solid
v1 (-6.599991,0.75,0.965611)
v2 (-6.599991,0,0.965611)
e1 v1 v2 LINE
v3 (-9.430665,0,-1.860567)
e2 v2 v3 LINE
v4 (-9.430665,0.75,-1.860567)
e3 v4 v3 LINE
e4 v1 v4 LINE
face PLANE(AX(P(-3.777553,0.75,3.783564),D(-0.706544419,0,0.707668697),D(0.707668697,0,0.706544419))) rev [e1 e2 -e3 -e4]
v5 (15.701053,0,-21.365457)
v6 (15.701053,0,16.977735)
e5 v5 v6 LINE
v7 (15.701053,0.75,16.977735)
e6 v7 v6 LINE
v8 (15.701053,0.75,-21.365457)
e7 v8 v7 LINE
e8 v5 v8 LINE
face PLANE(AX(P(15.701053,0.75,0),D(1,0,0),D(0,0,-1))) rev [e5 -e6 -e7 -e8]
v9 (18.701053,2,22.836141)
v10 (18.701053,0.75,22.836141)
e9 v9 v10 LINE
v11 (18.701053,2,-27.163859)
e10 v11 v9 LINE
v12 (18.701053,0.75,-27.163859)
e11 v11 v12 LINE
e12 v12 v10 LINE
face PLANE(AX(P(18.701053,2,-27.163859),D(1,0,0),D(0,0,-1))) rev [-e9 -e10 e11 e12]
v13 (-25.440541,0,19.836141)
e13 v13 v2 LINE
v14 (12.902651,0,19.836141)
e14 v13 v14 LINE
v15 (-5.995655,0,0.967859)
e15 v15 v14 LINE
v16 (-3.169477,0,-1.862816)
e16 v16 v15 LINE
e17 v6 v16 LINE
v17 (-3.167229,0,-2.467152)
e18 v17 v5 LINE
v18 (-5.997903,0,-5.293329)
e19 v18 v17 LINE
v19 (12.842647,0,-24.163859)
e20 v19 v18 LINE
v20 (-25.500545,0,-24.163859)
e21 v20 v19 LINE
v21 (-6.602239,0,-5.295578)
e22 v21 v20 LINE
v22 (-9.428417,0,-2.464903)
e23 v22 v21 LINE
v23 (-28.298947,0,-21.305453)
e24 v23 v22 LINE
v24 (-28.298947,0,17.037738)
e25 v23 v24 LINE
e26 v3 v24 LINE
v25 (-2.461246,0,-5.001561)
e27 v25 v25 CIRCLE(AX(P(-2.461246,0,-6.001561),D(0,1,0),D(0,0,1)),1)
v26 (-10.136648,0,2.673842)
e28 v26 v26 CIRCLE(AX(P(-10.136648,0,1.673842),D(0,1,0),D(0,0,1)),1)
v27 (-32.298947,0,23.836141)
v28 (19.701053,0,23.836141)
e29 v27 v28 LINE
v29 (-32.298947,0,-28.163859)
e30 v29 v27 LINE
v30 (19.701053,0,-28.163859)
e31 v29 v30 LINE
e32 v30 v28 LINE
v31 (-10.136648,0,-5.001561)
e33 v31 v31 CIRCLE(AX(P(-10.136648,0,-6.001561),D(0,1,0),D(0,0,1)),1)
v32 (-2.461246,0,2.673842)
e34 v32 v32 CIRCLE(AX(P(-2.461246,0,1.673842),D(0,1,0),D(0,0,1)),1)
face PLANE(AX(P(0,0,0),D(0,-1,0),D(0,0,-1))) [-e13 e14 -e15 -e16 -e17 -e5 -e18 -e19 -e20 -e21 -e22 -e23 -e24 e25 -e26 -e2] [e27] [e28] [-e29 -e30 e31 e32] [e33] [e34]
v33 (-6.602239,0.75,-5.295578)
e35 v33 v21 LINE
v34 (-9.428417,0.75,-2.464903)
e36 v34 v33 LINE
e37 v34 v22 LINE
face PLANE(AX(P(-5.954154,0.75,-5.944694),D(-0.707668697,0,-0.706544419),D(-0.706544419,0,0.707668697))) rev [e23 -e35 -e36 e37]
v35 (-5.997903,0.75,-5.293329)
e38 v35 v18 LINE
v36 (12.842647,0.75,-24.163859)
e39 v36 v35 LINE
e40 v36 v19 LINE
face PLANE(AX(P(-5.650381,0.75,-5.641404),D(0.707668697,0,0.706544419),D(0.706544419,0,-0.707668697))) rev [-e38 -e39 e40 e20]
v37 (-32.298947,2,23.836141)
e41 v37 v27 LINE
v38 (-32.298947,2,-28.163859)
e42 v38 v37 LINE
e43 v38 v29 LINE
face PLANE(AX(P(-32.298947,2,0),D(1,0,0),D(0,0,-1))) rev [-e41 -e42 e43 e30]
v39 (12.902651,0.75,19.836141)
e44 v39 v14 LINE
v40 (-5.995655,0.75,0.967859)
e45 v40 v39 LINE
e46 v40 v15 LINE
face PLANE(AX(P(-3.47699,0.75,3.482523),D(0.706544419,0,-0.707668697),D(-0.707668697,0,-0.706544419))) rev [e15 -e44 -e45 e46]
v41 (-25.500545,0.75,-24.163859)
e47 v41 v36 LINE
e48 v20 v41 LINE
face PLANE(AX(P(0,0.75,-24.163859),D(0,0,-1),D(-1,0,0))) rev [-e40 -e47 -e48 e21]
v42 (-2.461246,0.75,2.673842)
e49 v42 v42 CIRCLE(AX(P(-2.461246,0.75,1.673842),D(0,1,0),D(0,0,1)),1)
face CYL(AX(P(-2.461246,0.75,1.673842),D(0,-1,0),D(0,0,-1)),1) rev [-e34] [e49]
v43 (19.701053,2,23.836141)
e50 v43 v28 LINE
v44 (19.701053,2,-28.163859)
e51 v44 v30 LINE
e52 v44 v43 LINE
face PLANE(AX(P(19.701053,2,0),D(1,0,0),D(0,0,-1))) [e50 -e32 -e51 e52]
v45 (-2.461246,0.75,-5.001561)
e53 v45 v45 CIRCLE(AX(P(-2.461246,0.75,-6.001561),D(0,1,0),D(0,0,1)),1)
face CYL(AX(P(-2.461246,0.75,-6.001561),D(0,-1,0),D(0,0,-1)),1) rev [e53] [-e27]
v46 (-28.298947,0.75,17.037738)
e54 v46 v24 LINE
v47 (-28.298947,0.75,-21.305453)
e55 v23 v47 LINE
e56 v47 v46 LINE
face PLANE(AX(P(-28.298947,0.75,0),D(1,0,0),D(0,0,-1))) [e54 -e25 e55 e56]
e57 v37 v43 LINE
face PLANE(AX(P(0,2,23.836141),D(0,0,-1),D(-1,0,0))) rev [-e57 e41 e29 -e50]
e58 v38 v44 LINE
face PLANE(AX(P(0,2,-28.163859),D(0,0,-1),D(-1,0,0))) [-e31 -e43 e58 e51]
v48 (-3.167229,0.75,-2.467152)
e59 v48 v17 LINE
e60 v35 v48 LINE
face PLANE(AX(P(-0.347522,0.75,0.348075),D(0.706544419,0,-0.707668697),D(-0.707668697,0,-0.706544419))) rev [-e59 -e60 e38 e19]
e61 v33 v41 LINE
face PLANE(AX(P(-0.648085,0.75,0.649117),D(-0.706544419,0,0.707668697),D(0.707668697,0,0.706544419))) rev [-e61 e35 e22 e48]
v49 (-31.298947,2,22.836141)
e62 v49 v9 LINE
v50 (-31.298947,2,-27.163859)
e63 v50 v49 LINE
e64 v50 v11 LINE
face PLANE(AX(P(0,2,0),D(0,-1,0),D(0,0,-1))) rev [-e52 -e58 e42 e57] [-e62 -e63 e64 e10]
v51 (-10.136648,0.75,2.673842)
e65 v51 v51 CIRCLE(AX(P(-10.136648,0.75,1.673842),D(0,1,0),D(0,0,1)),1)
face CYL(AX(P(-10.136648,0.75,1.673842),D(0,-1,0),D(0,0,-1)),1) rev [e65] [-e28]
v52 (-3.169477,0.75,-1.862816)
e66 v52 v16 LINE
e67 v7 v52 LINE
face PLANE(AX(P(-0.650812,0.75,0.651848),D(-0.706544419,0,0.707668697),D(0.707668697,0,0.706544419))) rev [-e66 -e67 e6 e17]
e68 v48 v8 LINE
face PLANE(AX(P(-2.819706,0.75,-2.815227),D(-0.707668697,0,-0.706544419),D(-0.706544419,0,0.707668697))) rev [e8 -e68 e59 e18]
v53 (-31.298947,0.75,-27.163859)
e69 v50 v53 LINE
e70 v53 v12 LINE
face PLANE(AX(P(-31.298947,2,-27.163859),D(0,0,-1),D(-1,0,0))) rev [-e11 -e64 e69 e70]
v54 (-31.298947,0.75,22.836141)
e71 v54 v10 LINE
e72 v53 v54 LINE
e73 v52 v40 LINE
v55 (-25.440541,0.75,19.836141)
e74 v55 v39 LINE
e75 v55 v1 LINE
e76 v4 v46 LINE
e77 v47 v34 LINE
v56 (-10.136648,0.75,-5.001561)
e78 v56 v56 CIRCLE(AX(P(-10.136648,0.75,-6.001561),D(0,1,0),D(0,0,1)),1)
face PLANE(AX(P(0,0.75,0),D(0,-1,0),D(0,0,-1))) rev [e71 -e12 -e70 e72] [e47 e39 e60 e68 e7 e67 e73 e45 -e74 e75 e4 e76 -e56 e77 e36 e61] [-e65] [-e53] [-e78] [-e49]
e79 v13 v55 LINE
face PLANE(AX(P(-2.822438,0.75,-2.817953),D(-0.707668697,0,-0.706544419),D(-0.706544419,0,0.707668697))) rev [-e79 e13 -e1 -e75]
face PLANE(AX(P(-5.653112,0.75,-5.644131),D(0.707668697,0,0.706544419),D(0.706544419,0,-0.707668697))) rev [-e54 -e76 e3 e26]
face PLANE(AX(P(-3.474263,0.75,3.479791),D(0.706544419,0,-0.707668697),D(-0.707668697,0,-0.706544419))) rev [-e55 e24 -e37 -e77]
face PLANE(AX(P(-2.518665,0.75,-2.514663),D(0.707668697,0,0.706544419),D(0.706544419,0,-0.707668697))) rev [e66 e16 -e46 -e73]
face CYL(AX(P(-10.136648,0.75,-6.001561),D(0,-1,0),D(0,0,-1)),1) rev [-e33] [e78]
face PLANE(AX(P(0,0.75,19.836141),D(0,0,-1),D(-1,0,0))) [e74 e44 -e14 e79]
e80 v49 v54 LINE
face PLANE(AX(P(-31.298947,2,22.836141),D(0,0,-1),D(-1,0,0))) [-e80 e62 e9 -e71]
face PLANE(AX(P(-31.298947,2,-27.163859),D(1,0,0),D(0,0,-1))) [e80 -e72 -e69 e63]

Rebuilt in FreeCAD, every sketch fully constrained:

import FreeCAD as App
import Part
import Sketcher

V = App.Vector
Q = App.Units.Quantity


def add_polygon(sketch, points):
    """Adds a closed chain of lines whose ends are joined by coincident constraints."""
    first, n = sketch.GeometryCount, len(points)
    for a, b in zip(points, points[1:] + points[:1]):
        sketch.addGeometry(Part.LineSegment(App.Vector(*a, 0), App.Vector(*b, 0)), False)
    for i in range(n):
        sketch.addConstraint(Sketcher.Constraint("Coincident", first + i, 2, first + (i + 1) % n, 1))

doc = App.newDocument("Part")
body = doc.addObject("PartDesign::Body", "Body")

# Sketch on XZ plane
sketch1 = body.newObject("Sketcher::SketchObject", "Sketch")
sketch1.AttachmentSupport = (doc.getObject("XZ_Plane"), [""])
sketch1.MapMode = "FlatFace"
add_polygon(sketch1, [(-31, -27), (-31, 23), (19, 23), (19, -27)])  # lines 0-3
add_polygon(sketch1, [(16, 20), (-28, 20), (-28, -24), (16, -24)])  # lines 4-7
sketch1.addConstraint([
    Sketcher.Constraint("Vertical", 0),
    Sketcher.Constraint("Horizontal", 1),
    Sketcher.Constraint("Vertical", 2),
    Sketcher.Constraint("Horizontal", 3),
    Sketcher.Constraint("Horizontal", 4),
    Sketcher.Constraint("Vertical", 5),
    Sketcher.Constraint("Horizontal", 6),
    Sketcher.Constraint("Vertical", 7),
    Sketcher.Constraint("Equal", 3, 0),
    Sketcher.Constraint("Equal", 6, 5),
    Sketcher.Constraint("DistanceX", 1, 1, 1, 2, Q("50 mm")),
    Sketcher.Constraint("DistanceX", 4, 2, 4, 1, Q("44 mm")),
    Sketcher.Constraint("DistanceX", 0, 2, 4, 2, Q("3 mm")),
    Sketcher.Constraint("DistanceY", 4, 2, 0, 2, Q("3 mm")),
    Sketcher.Constraint("DistanceY", -1, 1, 0, 2, Q("22.836141 mm")),
    Sketcher.Constraint("DistanceX", 0, 2, -1, 1, Q("31.298947 mm")),
])
pad1 = body.newObject("PartDesign::Pad", "Pad")
pad1.Profile = sketch1
pad1.Length = 0.75
pad1.Reversed = True

# Sketch on XZ plane
sketch2 = body.newObject("Sketcher::SketchObject", "Sketch001")
sketch2.AttachmentSupport = (doc.getObject("XZ_Plane"), [""])
sketch2.MapMode = "FlatFace"
add_polygon(sketch2, [(-9.4, -1.9), (-31.3, 20), (-31.3, 22.8), (-28.4, 22.8), (-6.6, 1)])  # lines 0-4
sketch2.addGeometry(Part.Circle(V(-10.1, 1.7, 0), V(0, 0, 1), 1), False)  # 5
add_polygon(sketch2, [(-6, 1), (15.9, 22.8), (18.7, 22.8), (18.7, 20), (-3.2, -1.9)])  # lines 6-10
sketch2.addGeometry(Part.Circle(V(-2.5, 1.7, 0), V(0, 0, 1), 1), False)  # 11
add_polygon(sketch2, [(18.7, -27.2), (15.8, -27.2), (-6, -5.3), (-3.2, -2.5), (18.7, -24.4)])  # lines 12-16
sketch2.addGeometry(Part.Circle(V(-2.5, -6, 0), V(0, 0, 1), 1), False)  # 17
add_polygon(sketch2, [(-31.3, -27.2), (-31.3, -24.3), (-9.4, -2.5), (-6.6, -5.3), (-28.5, -27.2)])  # lines 18-22
sketch2.addGeometry(Part.Circle(V(-10.1, -6, 0), V(0, 0, 1), 1), False)  # 23
sketch2.addConstraint([
    Sketcher.Constraint("Vertical", 1),
    Sketcher.Constraint("Horizontal", 2),
    Sketcher.Constraint("Horizontal", 7),
    Sketcher.Constraint("Vertical", 8),
    Sketcher.Constraint("Horizontal", 12),
    Sketcher.Constraint("Vertical", 16),
    Sketcher.Constraint("Vertical", 18),
    Sketcher.Constraint("Horizontal", 22),
    Sketcher.Constraint("Equal", 5, 11),
    Sketcher.Constraint("Equal", 11, 17),
    Sketcher.Constraint("Equal", 17, 23),
    Sketcher.Constraint("Parallel", 0, 3),
    Sketcher.Constraint("Perpendicular", 3, 4),
    Sketcher.Constraint("Parallel", 4, 6),
    Sketcher.Constraint("Parallel", 6, 9),
    Sketcher.Constraint("Perpendicular", 9, 10),
    Sketcher.Constraint("Parallel", 10, 13),
    Sketcher.Constraint("Perpendicular", 13, 14),
    Sketcher.Constraint("Perpendicular", 14, 15),
    Sketcher.Constraint("Perpendicular", 15, 19),
    Sketcher.Constraint("Perpendicular", 19, 20),
    Sketcher.Constraint("Perpendicular", 20, 21),
    Sketcher.Constraint("Horizontal", 5, 3, 11, 3),
    Sketcher.Constraint("Horizontal", 17, 3, 23, 3),
    Sketcher.Constraint("Horizontal", 2, 2, 6, 2),
    Sketcher.Constraint("Horizontal", 16, 2, 21, 2),
    Sketcher.Constraint("Vertical", 11, 3, 17, 3),
    Sketcher.Constraint("Vertical", 5, 3, 23, 3),
    Sketcher.Constraint("Vertical", 8, 2, 15, 2),
    Sketcher.Constraint("Vertical", 1, 2, 18, 2),
    Sketcher.Constraint("Equal", 2, 12),
    Sketcher.Constraint("Equal", 7, 22),
    Sketcher.Constraint("Equal", 22, 1),
    Sketcher.Constraint("Equal", 12, 8),
    Sketcher.Constraint("Equal", 1, 16),
    Sketcher.Constraint("Equal", 8, 18),
    Sketcher.Constraint("Equal", 0, 6),
    Sketcher.Constraint("Equal", 9, 13),
    Sketcher.Constraint("Equal", 13, 19),
    Sketcher.Constraint("Diameter", 5, Q("2 mm")),
    Sketcher.Constraint("Distance", 4, Q("4 mm")),
    Sketcher.Constraint("DistanceX", 7, 1, 7, 2, Q("2.793629 mm")),
    Sketcher.Constraint("DistanceX", 0, 2, 5, 3, Q("21.162299 mm")),
    Sketcher.Constraint("DistanceX", 0, 2, 11, 3, Q("28.837701 mm")),
    Sketcher.Constraint("DistanceY", 5, 3, 1, 2, Q("21.162299 mm")),
    Sketcher.Constraint("DistanceY", 23, 3, 1, 2, Q("28.837701 mm")),
    Sketcher.Constraint("DistanceX", 11, 3, 7, 2, Q("21.162299 mm")),
    Sketcher.Constraint("DistanceY", 12, 2, 17, 3, Q("21.162299 mm")),
    Sketcher.Constraint("DistanceY", 15, 2, 13, 2, Q("19.076901 mm")),
    Sketcher.Constraint("Distance", 3, Q("30.905041 mm")),
    Sketcher.Constraint("DistanceX", 5, 3, -1, 1, Q("10.136648 mm")),
    Sketcher.Constraint("DistanceY", 17, 3, -1, 1, Q("6.001561 mm")),
])
pad2 = body.newObject("PartDesign::Pad", "Pad001")
pad2.Profile = sketch2
pad2.Length = 0.75
pad2.Reversed = True

# Sketch on XZ plane
sketch3 = body.newObject("Sketcher::SketchObject", "Sketch002")
sketch3.AttachmentSupport = (doc.getObject("XZ_Plane"), [""])
sketch3.MapMode = "FlatFace"
add_polygon(sketch3, [(-32, -28), (-32, 24), (20, 24), (20, -28)])  # lines 0-3
add_polygon(sketch3, [(19, 23), (-31, 23), (-31, -27), (19, -27)])  # lines 4-7
sketch3.addConstraint([
    Sketcher.Constraint("Vertical", 0),
    Sketcher.Constraint("Horizontal", 1),
    Sketcher.Constraint("Vertical", 2),
    Sketcher.Constraint("Horizontal", 3),
    Sketcher.Constraint("Horizontal", 4),
    Sketcher.Constraint("Vertical", 5),
    Sketcher.Constraint("Horizontal", 6),
    Sketcher.Constraint("Vertical", 7),
    Sketcher.Constraint("Equal", 3, 0),
    Sketcher.Constraint("Equal", 6, 5),
    Sketcher.Constraint("DistanceX", 1, 1, 1, 2, Q("52 mm")),
    Sketcher.Constraint("DistanceX", 4, 2, 4, 1, Q("50 mm")),
    Sketcher.Constraint("DistanceX", 0, 2, 4, 2, Q("1 mm")),
    Sketcher.Constraint("DistanceY", 4, 2, 0, 2, Q("1 mm")),
    Sketcher.Constraint("DistanceY", -1, 1, 0, 2, Q("23.836141 mm")),
    Sketcher.Constraint("DistanceX", 0, 2, -1, 1, Q("32.298947 mm")),
])
pad3 = body.newObject("PartDesign::Pad", "Pad002")
pad3.Profile = sketch3
pad3.Length = 2
pad3.Reversed = True

doc.recompute()
